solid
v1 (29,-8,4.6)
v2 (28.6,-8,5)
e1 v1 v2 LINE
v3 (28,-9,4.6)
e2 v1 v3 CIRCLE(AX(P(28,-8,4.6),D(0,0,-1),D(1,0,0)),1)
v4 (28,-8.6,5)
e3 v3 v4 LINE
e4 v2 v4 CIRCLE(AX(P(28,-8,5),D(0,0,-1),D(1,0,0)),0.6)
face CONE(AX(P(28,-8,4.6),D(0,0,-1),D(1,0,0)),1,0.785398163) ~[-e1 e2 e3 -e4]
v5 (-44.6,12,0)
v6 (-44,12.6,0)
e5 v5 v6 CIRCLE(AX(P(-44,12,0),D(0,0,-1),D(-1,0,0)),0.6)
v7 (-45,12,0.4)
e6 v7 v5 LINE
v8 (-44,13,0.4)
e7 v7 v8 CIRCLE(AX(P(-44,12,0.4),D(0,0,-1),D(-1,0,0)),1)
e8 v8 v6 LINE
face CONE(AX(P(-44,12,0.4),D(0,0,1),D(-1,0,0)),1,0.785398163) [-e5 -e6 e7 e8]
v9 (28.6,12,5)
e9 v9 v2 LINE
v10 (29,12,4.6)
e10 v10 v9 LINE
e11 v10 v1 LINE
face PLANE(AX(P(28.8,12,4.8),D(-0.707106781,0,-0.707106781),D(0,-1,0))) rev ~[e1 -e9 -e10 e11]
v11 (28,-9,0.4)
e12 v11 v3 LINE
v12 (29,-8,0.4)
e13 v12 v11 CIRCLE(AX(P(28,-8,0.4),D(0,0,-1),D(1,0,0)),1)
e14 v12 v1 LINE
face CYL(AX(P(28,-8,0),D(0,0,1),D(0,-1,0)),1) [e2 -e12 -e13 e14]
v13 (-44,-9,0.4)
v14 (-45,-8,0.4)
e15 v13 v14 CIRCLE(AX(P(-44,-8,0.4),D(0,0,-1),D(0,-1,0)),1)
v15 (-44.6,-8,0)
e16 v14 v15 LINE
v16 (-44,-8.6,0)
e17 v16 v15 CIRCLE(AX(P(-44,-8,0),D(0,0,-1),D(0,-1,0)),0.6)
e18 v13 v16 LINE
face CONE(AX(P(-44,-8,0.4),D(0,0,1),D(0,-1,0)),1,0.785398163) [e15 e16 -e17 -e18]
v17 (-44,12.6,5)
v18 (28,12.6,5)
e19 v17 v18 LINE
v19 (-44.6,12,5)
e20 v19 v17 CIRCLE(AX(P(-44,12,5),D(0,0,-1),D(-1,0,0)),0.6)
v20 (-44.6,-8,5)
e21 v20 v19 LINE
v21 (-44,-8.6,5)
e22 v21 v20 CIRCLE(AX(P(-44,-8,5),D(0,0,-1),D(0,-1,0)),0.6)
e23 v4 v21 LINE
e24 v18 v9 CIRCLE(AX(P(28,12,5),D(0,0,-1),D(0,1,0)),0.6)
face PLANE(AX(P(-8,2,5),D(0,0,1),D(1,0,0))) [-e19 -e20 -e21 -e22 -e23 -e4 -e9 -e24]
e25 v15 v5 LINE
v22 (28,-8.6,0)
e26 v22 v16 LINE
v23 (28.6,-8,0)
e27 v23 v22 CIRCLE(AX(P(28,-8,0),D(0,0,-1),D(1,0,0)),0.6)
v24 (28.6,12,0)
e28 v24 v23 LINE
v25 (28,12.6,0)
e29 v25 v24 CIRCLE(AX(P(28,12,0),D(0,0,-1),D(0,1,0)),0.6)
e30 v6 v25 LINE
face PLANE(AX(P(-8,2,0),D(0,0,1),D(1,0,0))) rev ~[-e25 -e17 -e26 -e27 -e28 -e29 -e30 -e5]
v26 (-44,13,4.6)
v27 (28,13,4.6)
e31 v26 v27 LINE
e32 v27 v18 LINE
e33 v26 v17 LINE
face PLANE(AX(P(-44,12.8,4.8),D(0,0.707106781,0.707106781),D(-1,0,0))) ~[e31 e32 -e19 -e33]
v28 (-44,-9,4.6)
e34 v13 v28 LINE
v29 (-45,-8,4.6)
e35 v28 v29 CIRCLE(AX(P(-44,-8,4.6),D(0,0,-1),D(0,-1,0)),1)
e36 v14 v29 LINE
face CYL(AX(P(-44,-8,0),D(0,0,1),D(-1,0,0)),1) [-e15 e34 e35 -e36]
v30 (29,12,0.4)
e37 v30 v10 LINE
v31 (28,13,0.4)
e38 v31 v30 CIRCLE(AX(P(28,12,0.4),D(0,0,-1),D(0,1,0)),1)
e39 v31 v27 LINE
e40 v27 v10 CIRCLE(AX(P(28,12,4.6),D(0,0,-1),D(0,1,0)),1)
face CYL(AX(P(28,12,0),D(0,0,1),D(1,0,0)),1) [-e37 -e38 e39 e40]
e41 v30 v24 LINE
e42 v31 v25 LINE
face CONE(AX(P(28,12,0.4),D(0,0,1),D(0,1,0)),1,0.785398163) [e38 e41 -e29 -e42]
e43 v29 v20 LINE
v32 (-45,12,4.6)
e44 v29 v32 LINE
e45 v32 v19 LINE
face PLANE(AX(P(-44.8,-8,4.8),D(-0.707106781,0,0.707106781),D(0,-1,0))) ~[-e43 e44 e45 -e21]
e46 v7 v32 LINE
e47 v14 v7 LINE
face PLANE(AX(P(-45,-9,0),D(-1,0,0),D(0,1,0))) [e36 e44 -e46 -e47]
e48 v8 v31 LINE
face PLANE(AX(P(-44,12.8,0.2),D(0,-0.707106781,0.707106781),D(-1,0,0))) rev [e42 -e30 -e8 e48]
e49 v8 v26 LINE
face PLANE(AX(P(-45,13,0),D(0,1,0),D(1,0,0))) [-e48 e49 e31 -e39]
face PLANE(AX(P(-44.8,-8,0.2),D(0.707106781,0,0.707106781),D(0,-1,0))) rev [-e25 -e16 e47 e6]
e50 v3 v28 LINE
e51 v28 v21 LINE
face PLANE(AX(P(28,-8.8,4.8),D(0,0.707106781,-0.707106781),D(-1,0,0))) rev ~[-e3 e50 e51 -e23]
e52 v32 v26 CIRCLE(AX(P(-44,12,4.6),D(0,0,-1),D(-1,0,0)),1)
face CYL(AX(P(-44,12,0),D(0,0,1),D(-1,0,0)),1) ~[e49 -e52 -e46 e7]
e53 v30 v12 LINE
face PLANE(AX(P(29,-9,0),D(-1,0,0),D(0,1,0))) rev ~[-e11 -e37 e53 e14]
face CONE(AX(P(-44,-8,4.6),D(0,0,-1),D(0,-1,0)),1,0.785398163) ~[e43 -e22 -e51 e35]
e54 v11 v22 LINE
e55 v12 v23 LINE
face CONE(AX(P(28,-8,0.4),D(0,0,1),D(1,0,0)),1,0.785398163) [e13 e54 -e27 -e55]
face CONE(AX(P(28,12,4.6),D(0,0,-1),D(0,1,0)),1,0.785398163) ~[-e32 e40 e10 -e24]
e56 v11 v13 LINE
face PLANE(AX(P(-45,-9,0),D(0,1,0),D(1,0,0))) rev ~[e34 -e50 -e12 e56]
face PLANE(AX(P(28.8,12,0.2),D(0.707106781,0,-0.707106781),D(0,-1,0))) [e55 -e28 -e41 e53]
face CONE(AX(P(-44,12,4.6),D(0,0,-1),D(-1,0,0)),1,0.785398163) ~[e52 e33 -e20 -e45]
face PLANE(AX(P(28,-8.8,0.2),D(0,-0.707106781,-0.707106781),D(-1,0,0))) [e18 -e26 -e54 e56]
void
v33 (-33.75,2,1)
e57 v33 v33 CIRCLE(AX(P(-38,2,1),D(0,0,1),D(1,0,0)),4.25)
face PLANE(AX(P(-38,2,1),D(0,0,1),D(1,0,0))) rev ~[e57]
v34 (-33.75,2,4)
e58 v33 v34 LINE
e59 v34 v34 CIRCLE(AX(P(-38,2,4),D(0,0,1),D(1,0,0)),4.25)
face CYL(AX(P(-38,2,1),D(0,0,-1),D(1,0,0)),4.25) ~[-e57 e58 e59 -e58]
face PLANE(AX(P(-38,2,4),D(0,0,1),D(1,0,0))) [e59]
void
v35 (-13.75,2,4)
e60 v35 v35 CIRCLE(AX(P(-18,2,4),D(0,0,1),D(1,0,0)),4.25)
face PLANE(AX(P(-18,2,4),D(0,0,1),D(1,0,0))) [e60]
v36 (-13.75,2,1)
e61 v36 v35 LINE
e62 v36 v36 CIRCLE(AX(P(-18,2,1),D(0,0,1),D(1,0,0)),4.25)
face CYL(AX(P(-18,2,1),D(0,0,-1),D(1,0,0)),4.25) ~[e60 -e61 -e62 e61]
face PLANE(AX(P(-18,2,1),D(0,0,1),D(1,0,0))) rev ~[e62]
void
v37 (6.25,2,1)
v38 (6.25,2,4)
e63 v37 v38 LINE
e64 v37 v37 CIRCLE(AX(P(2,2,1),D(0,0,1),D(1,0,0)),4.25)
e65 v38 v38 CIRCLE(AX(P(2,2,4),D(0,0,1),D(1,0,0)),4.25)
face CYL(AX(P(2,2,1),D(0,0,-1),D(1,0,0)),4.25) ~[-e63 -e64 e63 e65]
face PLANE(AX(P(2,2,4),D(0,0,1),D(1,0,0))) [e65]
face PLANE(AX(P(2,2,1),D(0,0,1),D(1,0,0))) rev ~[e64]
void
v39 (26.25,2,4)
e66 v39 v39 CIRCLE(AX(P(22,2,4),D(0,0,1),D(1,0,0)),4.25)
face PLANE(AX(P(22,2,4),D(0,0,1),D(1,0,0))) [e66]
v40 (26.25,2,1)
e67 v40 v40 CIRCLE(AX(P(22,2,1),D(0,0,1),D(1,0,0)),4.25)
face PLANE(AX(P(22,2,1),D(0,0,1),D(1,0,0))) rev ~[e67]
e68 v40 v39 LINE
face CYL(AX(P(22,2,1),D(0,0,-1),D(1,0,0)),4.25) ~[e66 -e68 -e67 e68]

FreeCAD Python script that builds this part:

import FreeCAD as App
import Part
import Sketcher
from FreeCAD import Vector
Q = App.Units.Quantity


def edges_at(feature, points):
    """Names of the edges that pass closest to the given points."""
    edges = feature.Shape.Edges
    near = lambda p: min(range(len(edges)), key=lambda i: edges[i].distToShape(Part.Vertex(*p))[0])
    return sorted({f"Edge{near(p) + 1}" for p in points})

doc = App.newDocument("Part")
body = doc.addObject("PartDesign::Body", "Body")

# Sketch on XY plane
sketch1 = doc.addObject("Sketcher::SketchObject", "Sketch")
body.addObject(sketch1)
sketch1.AttachmentSupport = (doc.XY_Plane, [""])
sketch1.MapMode = "FlatFace"
sketch1.addGeometry(Part.Circle(Vector(22, 2, 0), Vector(0, 0, 1), 4.2), False)
sketch1.addConstraint([
    Sketcher.Constraint("Diameter", 0, Q("8.5 mm")),
    Sketcher.Constraint("DistanceX", -1, 1, 0, 3, Q("22 mm")),
    Sketcher.Constraint("DistanceY", -1, 1, 0, 3, Q("2 mm")),
])
pad1 = doc.addObject("PartDesign::Pad", "Pad")
body.addObject(pad1)
pad1.Profile = sketch1
pad1.Length = 3
body2 = doc.addObject("PartDesign::Body", "Body001")

# Sketch on XY plane
sketch2 = doc.addObject("Sketcher::SketchObject", "Sketch001")
body2.addObject(sketch2)
sketch2.AttachmentSupport = (doc.getObject("XY_Plane001"), [""])
sketch2.MapMode = "FlatFace"
sketch2.addGeometry(Part.Circle(Vector(-38, 2, 0), Vector(0, 0, 1), 4.2), False)
sketch2.addConstraint([
    Sketcher.Constraint("Diameter", 0, Q("8.5 mm")),
    Sketcher.Constraint("DistanceX", 0, 3, -1, 1, Q("38 mm")),
    Sketcher.Constraint("DistanceY", -1, 1, 0, 3, Q("2 mm")),
])
pad2 = doc.addObject("PartDesign::Pad", "Pad001")
body2.addObject(pad2)
pad2.Profile = sketch2
pad2.Length = 3
body3 = doc.addObject("PartDesign::Body", "Body002")

# Sketch on XY plane
sketch3 = doc.addObject("Sketcher::SketchObject", "Sketch002")
body3.addObject(sketch3)
sketch3.AttachmentSupport = (doc.getObject("XY_Plane002"), [""])
sketch3.MapMode = "FlatFace"
sketch3.addGeometry(Part.Circle(Vector(2, 2, 0), Vector(0, 0, 1), 4.2), False)
sketch3.addConstraint([
    Sketcher.Constraint("Diameter", 0, Q("8.5 mm")),
    Sketcher.Constraint("DistanceX", -1, 1, 0, 3, Q("2 mm")),
    Sketcher.Constraint("DistanceY", -1, 1, 0, 3, Q("2 mm")),
])
pad3 = doc.addObject("PartDesign::Pad", "Pad002")
body3.addObject(pad3)
pad3.Profile = sketch3
pad3.Length = 3
body4 = doc.addObject("PartDesign::Body", "Body003")
body4.AllowCompound = True

# Sketch on XY plane
sketch4 = doc.addObject("Sketcher::SketchObject", "Sketch003")
body4.addObject(sketch4)
sketch4.AttachmentSupport = (doc.getObject("XY_Plane003"), [""])
sketch4.MapMode = "FlatFace"
sketch4.addGeometry(Part.Circle(Vector(-18, 2, 0), Vector(0, 0, 1), 4.2), False)
sketch4.addConstraint([
    Sketcher.Constraint("Diameter", 0, Q("8.5 mm")),
    Sketcher.Constraint("DistanceX", 0, 3, -1, 1, Q("18 mm")),
    Sketcher.Constraint("DistanceY", -1, 1, 0, 3, Q("2 mm")),
])
pad4 = doc.addObject("PartDesign::Pad", "Pad003")
body4.addObject(pad4)
pad4.Profile = sketch4
pad4.Length = 3
doc.recompute()

boolean = doc.addObject("PartDesign::Boolean", "Boolean")
body4.addObject(boolean)
boolean.Type = "Fuse"
boolean.addObjects([body])
doc.recompute()

boolean2 = doc.addObject("PartDesign::Boolean", "Boolean001")
body4.addObject(boolean2)
boolean2.Type = "Fuse"
boolean2.addObjects([body2])
doc.recompute()

boolean3 = doc.addObject("PartDesign::Boolean", "Boolean002")
body4.addObject(boolean3)
boolean3.Type = "Fuse"
boolean3.addObjects([body3])
body5 = doc.addObject("PartDesign::Body", "Body004")
body5.AllowCompound = True
doc.recompute()

body4.Placement = App.Placement(Vector(0, 0, 1), App.Rotation(Vector(0, 0, 1), 0))
boolean4 = doc.addObject("PartDesign::Boolean", "Boolean003")
body5.addObject(boolean4)
boolean4.Type = "Fuse"
boolean4.addObjects([body4])
body6 = doc.addObject("PartDesign::Body", "Body005")

# Sketch on XY plane
sketch5 = doc.addObject("Sketcher::SketchObject", "Sketch004")
body6.addObject(sketch5)
sketch5.AttachmentSupport = (doc.getObject("XY_Plane005"), [""])
sketch5.MapMode = "FlatFace"
sketch5.addGeometry([
    Part.LineSegment(Vector(-45, 13, 0), Vector(-45, -9, 0)),
    Part.LineSegment(Vector(-45, -9, 0), Vector(29, -9, 0)),
    Part.LineSegment(Vector(29, -9, 0), Vector(29, 13, 0)),
    Part.LineSegment(Vector(29, 13, 0), Vector(-45, 13, 0)),
], False)
sketch5.addConstraint([
    Sketcher.Constraint("Coincident", 0, 2, 1, 1),
    Sketcher.Constraint("Coincident", 1, 2, 2, 1),
    Sketcher.Constraint("Coincident", 2, 2, 3, 1),
    Sketcher.Constraint("Coincident", 3, 2, 0, 1),
    Sketcher.Constraint("Vertical", 0),
    Sketcher.Constraint("Horizontal", 1),
    Sketcher.Constraint("Vertical", 2),
    Sketcher.Constraint("Horizontal", 3),
    Sketcher.Constraint("DistanceX", 1, 1, 1, 2, Q("74 mm")),
    Sketcher.Constraint("DistanceY", 0, 2, 0, 1, Q("22 mm")),
    Sketcher.Constraint("DistanceX", 0, 2, -1, 1, Q("45 mm")),
    Sketcher.Constraint("DistanceY", 0, 2, -1, 1, Q("9 mm")),
])
pad5 = doc.addObject("PartDesign::Pad", "Pad004")
body6.addObject(pad5)
pad5.Profile = sketch5
pad5.Length = 5
doc.recompute()

fillet = doc.addObject("PartDesign::Fillet", "Fillet")
body6.addObject(fillet)
fillet.Base = (pad5, edges_at(pad5, [
    (-45, -9, 2.5),
    (-45, 13, 2.5),
    (29, -9, 2.5),
    (29, 13, 2.5),
]))
fillet.Radius = 1
doc.recompute()

chamfer = doc.addObject("PartDesign::Chamfer", "Chamfer")
body6.addObject(chamfer)
chamfer.Base = (fillet, edges_at(fillet, [
    (-45, 2, 5),
    (-45, 2, 0),
    (-44.707, -8.707, 5),
    (-44.707, 12.707, 5),
    (-8, -9, 5),
    (-8, 13, 5),
    (28.707, -8.707, 5),
    (28.707, 12.707, 5),
    (29, 2, 5),
    (-44.707, -8.707, 0),
    (-44.707, 12.707, 0),
    (-8, -9, 0),
    (-8, 13, 0),
    (28.707, -8.707, 0),
    (28.707, 12.707, 0),
    (29, 2, 0),
]))
chamfer.Size = 0.4
doc.recompute()

boolean5 = doc.addObject("PartDesign::Boolean", "Boolean004")
body6.addObject(boolean5)
boolean5.Type = "Cut"
boolean5.addObjects([body5])

doc.recompute()
